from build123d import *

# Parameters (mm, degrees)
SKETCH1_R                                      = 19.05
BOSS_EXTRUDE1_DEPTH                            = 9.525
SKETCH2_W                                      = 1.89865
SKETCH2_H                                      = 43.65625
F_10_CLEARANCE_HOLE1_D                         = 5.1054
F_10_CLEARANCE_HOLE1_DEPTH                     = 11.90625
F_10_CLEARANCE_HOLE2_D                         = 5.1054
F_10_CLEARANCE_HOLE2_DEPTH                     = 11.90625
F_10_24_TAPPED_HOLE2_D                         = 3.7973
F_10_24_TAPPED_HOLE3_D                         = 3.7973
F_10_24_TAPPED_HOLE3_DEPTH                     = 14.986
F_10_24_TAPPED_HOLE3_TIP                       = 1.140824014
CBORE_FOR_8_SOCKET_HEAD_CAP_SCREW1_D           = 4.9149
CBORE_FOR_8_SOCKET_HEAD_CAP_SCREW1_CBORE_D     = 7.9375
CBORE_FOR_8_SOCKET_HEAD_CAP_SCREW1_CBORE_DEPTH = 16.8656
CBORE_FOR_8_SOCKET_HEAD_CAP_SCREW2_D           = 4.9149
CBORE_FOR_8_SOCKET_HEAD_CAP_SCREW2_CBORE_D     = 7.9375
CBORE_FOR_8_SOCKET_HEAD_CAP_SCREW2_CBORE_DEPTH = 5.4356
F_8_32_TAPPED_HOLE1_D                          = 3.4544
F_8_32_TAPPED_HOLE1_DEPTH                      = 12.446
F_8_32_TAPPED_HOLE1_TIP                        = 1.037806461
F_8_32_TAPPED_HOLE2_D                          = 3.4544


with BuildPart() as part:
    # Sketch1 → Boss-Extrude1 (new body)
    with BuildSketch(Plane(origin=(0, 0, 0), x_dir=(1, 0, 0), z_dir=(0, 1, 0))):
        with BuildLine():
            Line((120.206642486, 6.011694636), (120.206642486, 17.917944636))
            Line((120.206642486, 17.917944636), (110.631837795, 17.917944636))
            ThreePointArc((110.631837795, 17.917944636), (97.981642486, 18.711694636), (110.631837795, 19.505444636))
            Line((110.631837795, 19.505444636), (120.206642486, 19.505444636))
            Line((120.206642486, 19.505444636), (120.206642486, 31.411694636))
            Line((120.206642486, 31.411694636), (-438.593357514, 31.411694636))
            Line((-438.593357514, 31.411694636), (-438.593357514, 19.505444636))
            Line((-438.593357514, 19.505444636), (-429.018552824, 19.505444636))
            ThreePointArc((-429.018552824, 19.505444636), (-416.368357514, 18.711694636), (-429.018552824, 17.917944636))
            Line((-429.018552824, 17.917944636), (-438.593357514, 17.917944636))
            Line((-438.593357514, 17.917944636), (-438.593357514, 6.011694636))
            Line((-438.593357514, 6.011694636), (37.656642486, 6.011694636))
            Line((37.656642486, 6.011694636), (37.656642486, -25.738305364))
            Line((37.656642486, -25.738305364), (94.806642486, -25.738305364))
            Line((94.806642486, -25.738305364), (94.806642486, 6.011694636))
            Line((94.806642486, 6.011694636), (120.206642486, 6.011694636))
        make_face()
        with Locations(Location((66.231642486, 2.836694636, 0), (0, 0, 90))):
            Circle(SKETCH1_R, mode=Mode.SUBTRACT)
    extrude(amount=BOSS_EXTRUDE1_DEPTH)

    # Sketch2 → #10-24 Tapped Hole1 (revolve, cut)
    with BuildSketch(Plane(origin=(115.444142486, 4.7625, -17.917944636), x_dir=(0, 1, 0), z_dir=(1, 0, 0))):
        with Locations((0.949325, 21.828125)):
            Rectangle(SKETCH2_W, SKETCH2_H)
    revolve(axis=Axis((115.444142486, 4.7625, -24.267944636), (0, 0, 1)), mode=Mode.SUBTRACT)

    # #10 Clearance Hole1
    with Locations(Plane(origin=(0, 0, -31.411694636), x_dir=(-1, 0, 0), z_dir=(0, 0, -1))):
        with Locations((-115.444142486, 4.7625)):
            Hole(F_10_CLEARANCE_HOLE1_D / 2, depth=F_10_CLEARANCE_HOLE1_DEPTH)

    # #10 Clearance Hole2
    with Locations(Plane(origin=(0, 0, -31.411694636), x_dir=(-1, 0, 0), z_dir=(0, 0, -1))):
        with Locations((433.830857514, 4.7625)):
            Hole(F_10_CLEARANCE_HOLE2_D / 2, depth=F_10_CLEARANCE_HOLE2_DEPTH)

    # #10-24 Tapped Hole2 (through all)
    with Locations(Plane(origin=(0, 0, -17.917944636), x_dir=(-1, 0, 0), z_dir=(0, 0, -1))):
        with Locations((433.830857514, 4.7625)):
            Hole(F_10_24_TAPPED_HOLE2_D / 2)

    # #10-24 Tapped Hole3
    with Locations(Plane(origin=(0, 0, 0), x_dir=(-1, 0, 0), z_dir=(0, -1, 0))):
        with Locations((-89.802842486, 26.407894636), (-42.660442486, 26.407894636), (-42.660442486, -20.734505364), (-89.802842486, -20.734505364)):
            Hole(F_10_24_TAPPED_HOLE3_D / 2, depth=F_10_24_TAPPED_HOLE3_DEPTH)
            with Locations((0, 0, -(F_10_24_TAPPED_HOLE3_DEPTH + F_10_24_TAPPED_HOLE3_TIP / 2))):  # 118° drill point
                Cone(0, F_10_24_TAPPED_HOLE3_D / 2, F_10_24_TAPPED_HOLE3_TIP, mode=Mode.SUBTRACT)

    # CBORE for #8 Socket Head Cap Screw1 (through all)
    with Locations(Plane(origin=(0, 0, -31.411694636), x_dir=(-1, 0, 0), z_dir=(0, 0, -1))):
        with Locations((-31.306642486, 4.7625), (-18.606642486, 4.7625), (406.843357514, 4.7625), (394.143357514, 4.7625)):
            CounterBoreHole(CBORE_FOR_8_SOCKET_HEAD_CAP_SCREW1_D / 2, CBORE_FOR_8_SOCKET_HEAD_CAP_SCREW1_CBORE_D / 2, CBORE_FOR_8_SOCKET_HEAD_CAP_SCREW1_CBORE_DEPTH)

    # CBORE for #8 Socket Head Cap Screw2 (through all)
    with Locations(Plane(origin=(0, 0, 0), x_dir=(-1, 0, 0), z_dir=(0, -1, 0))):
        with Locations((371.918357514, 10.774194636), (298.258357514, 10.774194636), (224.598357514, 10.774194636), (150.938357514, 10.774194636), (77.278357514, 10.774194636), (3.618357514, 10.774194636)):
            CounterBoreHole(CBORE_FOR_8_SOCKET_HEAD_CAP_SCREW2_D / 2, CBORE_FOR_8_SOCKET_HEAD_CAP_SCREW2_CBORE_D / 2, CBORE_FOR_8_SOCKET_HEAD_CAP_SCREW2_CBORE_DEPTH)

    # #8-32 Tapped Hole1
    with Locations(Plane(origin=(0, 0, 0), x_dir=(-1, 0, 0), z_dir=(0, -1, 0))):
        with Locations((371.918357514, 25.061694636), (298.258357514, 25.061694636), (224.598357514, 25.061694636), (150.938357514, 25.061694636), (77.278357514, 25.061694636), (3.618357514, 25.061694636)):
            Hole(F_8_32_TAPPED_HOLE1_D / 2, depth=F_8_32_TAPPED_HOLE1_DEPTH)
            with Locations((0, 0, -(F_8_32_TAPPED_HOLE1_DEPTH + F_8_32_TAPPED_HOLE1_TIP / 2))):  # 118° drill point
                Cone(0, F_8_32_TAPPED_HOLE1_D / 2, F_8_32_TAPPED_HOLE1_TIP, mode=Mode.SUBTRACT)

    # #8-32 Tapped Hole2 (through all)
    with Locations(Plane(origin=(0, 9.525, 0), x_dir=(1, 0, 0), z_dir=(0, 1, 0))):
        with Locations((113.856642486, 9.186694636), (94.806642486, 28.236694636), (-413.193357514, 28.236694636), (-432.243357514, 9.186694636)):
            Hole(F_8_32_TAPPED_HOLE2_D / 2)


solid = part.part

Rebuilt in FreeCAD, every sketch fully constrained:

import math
import FreeCAD as App
import Part
import Sketcher
Q = App.Units.Quantity


def add_polygon(sketch, points):
    """Adds a closed chain of lines whose ends are joined by coincident constraints."""
    first, n = sketch.GeometryCount, len(points)
    for a, b in zip(points, points[1:] + points[:1]):
        sketch.addGeometry(Part.LineSegment(App.Vector(*a, 0), App.Vector(*b, 0)), False)
    for i in range(n):
        sketch.addConstraint(Sketcher.Constraint("Coincident", first + i, 2, first + (i + 1) % n, 1))

doc = App.newDocument("Part")
body = doc.addObject("PartDesign::Body", "Body")

# Sketch on XZ plane
sketch1 = body.newObject("Sketcher::SketchObject", "Sketch")
sketch1.AttachmentSupport = (doc.getObject("XZ_Plane"), [""])
sketch1.MapMode = "FlatFace"
sketch1.addGeometry([
    Part.LineSegment(App.Vector(120.206642, -6.011695, 0), App.Vector(120.206642, -17.917945, 0)),  # 0
    Part.LineSegment(App.Vector(120.206642, -17.917945, 0), App.Vector(110.631838, -17.917945, 0)),  # 1
    Part.ArcOfCircle(Part.Circle(App.Vector(104.331642, -18.711695, 0), App.Vector(0, 0, 1), 6.35), math.radians(7.180756), math.radians(352.819244)),  # 2
    Part.LineSegment(App.Vector(110.631838, -19.505445, 0), App.Vector(120.206642, -19.505445, 0)),  # 3
    Part.LineSegment(App.Vector(120.206642, -19.505445, 0), App.Vector(120.206642, -31.411695, 0)),  # 4
    Part.LineSegment(App.Vector(120.206642, -31.411695, 0), App.Vector(-438.593358, -31.411695, 0)),  # 5
    Part.LineSegment(App.Vector(-438.593358, -31.411695, 0), App.Vector(-438.593358, -19.505445, 0)),  # 6
    Part.LineSegment(App.Vector(-438.593358, -19.505445, 0), App.Vector(-429.018553, -19.505445, 0)),  # 7
    Part.ArcOfCircle(Part.Circle(App.Vector(-422.718358, -18.711695, 0), App.Vector(0, 0, 1), 6.35), math.radians(-172.819244), math.radians(172.819244)),  # 8
    Part.LineSegment(App.Vector(-429.018553, -17.917945, 0), App.Vector(-438.593358, -17.917945, 0)),  # 9
    Part.LineSegment(App.Vector(-438.593358, -17.917945, 0), App.Vector(-438.593358, -6.011695, 0)),  # 10
    Part.LineSegment(App.Vector(-438.593358, -6.011695, 0), App.Vector(37.656642, -6.011695, 0)),  # 11
    Part.LineSegment(App.Vector(37.656642, -6.011695, 0), App.Vector(37.656642, 25.738305, 0)),  # 12
    Part.LineSegment(App.Vector(37.656642, 25.738305, 0), App.Vector(94.806642, 25.738305, 0)),  # 13
    Part.LineSegment(App.Vector(94.806642, 25.738305, 0), App.Vector(94.806642, -6.011695, 0)),  # 14
    Part.LineSegment(App.Vector(94.806642, -6.011695, 0), App.Vector(120.206642, -6.011695, 0)),  # 15
    Part.Circle(App.Vector(66.231642, -2.836695, 0), App.Vector(0, 0, 1), 19.05),  # 16
], False)
sketch1.addConstraint([
    Sketcher.Constraint("Coincident", 0, 2, 1, 1),
    Sketcher.Constraint("Coincident", 1, 2, 2, 1),
    Sketcher.Constraint("Coincident", 2, 2, 3, 1),
    Sketcher.Constraint("Coincident", 3, 2, 4, 1),
    Sketcher.Constraint("Coincident", 4, 2, 5, 1),
    Sketcher.Constraint("Coincident", 5, 2, 6, 1),
    Sketcher.Constraint("Coincident", 6, 2, 7, 1),
    Sketcher.Constraint("Coincident", 7, 2, 8, 1),
    Sketcher.Constraint("Coincident", 8, 2, 9, 1),
    Sketcher.Constraint("Coincident", 9, 2, 10, 1),
    Sketcher.Constraint("Coincident", 10, 2, 11, 1),
    Sketcher.Constraint("Coincident", 11, 2, 12, 1),
    Sketcher.Constraint("Coincident", 12, 2, 13, 1),
    Sketcher.Constraint("Coincident", 13, 2, 14, 1),
    Sketcher.Constraint("Coincident", 14, 2, 15, 1),
    Sketcher.Constraint("Coincident", 15, 2, 0, 1),
    Sketcher.Constraint("Vertical", 0),
    Sketcher.Constraint("Horizontal", 1),
    Sketcher.Constraint("Horizontal", 3),
    Sketcher.Constraint("Vertical", 4),
    Sketcher.Constraint("Horizontal", 5),
    Sketcher.Constraint("Vertical", 6),
    Sketcher.Constraint("Horizontal", 7),
    Sketcher.Constraint("Horizontal", 9),
    Sketcher.Constraint("Vertical", 10),
    Sketcher.Constraint("Horizontal", 11),
    Sketcher.Constraint("Vertical", 12),
    Sketcher.Constraint("Horizontal", 13),
    Sketcher.Constraint("Vertical", 14),
    Sketcher.Constraint("Horizontal", 15),
    Sketcher.Constraint("Equal", 2, 8),
    Sketcher.Constraint("Horizontal", 2, 3, 8, 3),
    Sketcher.Constraint("Horizontal", 3, 2, 6, 2),
    Sketcher.Constraint("Horizontal", 1, 2, 8, 2),
    Sketcher.Constraint("Horizontal", 11, 2, 14, 2),
    Sketcher.Constraint("Vertical", 1, 2, 2, 2),
    Sketcher.Constraint("Vertical", 0, 2, 3, 2),
    Sketcher.Constraint("Vertical", 6, 2, 9, 2),
    Sketcher.Constraint("Equal", 3, 7),
    Sketcher.Constraint("Equal", 0, 4),
    Sketcher.Constraint("Diameter", 16, Q("1.5 in")),
    Sketcher.Constraint("DistanceX", 5, 2, 5, 1, Q("22 in")),
    Sketcher.Constraint("DistanceX", 15, 1, 15, 2, Q("1 in")),
    Sketcher.Constraint("Radius", 2, Q("0.25 in")),
    Sketcher.Constraint("DistanceX", 11, 1, 11, 2, Q("18.75 in")),
    Sketcher.Constraint("DistanceY", 12, 1, 12, 2, Q("1.25 in")),
    Sketcher.Constraint("DistanceX", 16, 3, 2, 3, Q("1.5 in")),
    Sketcher.Constraint("DistanceY", 4, 2, 2, 3, Q("0.5 in")),
    Sketcher.Constraint("DistanceY", 0, 2, 0, 1, Q("0.46875 in")),
    Sketcher.Constraint("DistanceX", 8, 3, 2, 3, Q("20.75 in")),
    Sketcher.Constraint("DistanceY", 2, 3, 16, 3, Q("0.625 in")),
    Sketcher.Constraint("DistanceX", -1, 1, 2, 3, Q("104.331642 mm")),
    Sketcher.Constraint("DistanceY", 2, 3, -1, 1, Q("18.711695 mm")),
])
pad1 = body.newObject("PartDesign::Pad", "Pad")
pad1.Profile = sketch1
pad1.Length = Q("0.375 in")
pad1.Reversed = True

# Sketch on YZ plane
sketch2 = body.newObject("Sketcher::SketchObject", "Sketch001")
sketch2.AttachmentSupport = (doc.getObject("YZ_Plane"), [""])
sketch2.MapMode = "FlatFace"
sketch2.AttachmentOffset = App.Placement(App.Vector(0, 0, 115.444142), App.Rotation())
add_polygon(sketch2, [(4.7625, 25.738305), (4.7625, -17.917945), (6.66115, -17.917945), (6.66115, 25.738305)])  # lines 0-3
sketch2.addGeometry(Part.LineSegment(App.Vector(4.7625, -17.917945, 0), App.Vector(4.7625, 25.738305, 0)), True)  # axis
sketch2.addConstraint([
    Sketcher.Constraint("Vertical", 0),
    Sketcher.Constraint("Horizontal", 1),
    Sketcher.Constraint("Vertical", 2),
    Sketcher.Constraint("Horizontal", 3),
    Sketcher.Constraint("Vertical", 4),
    Sketcher.Constraint("Coincident", 4, 1, 0, 2),
    Sketcher.Constraint("Horizontal", 2, 2, 4, 2),
    Sketcher.Constraint("DistanceY", 0, 2, 0, 1, Q("1.71875 in")),
    Sketcher.Constraint("DistanceX", -1, 1, 0, 2, Q("0.1875 in")),
    Sketcher.Constraint("DistanceX", 1, 1, 1, 2, Q("1.89865 mm")),
    Sketcher.Constraint("DistanceY", 0, 2, -1, 1, Q("17.917945 mm")),
])
groove = body.newObject("PartDesign::Groove", "Groove")
groove.Profile = sketch2
groove.ReferenceAxis = (sketch2, ["Axis0"])
groove.Angle = 360

# Sketch on XY plane
sketch3 = body.newObject("Sketcher::SketchObject", "Sketch002")
sketch3.AttachmentSupport = (doc.getObject("XY_Plane"), [""])
sketch3.MapMode = "FlatFace"
sketch3.AttachmentOffset = App.Placement(App.Vector(0, 0, -31.411695), App.Rotation())
sketch3.addGeometry(Part.Circle(App.Vector(115.444142, 4.7625, 0), App.Vector(0, 0, 1), 2.5527), False)
sketch3.addConstraint([
    Sketcher.Constraint("Diameter", 0, Q("0.201 in")),
    Sketcher.Constraint("DistanceY", -1, 1, 0, 3, Q("0.1875 in")),
    Sketcher.Constraint("DistanceX", -1, 1, 0, 3, Q("115.444142 mm")),
])
doc.recompute()
hole = body.newObject("PartDesign::Hole", "Hole")
hole.Profile = sketch3
hole.ThreadType = "None"
hole.Diameter = Q("0.201 in")
hole.DepthType = "Dimension"
hole.Depth = Q("0.46875 in")
hole.DrillPoint = "Flat"
hole.Reversed = True

# Sketch on XY plane
sketch4 = body.newObject("Sketcher::SketchObject", "Sketch003")
sketch4.AttachmentSupport = (doc.getObject("XY_Plane"), [""])
sketch4.MapMode = "FlatFace"
sketch4.AttachmentOffset = App.Placement(App.Vector(0, 0, -31.411695), App.Rotation())
sketch4.addGeometry(Part.Circle(App.Vector(-433.830858, 4.7625, 0), App.Vector(0, 0, 1), 2.5527), False)
sketch4.addConstraint([
    Sketcher.Constraint("Diameter", 0, Q("0.201 in")),
    Sketcher.Constraint("DistanceY", -1, 1, 0, 3, Q("0.1875 in")),
    Sketcher.Constraint("DistanceX", 0, 3, -1, 1, Q("433.830858 mm")),
])
doc.recompute()
hole2 = body.newObject("PartDesign::Hole", "Hole001")
hole2.Profile = sketch4
hole2.ThreadType = "None"
hole2.Diameter = Q("0.201 in")
hole2.DepthType = "Dimension"
hole2.Depth = Q("0.46875 in")
hole2.DrillPoint = "Flat"
hole2.Reversed = True

# Sketch on XY plane
sketch5 = body.newObject("Sketcher::SketchObject", "Sketch004")
sketch5.AttachmentSupport = (doc.getObject("XY_Plane"), [""])
sketch5.MapMode = "FlatFace"
sketch5.AttachmentOffset = App.Placement(App.Vector(0, 0, -17.917945), App.Rotation())
sketch5.addGeometry(Part.Circle(App.Vector(-433.830858, 4.7625, 0), App.Vector(0, 0, 1), 1.89865), False)
sketch5.addConstraint([
    Sketcher.Constraint("Diameter", 0, Q("0.1495 in")),
    Sketcher.Constraint("DistanceY", -1, 1, 0, 3, Q("0.1875 in")),
    Sketcher.Constraint("DistanceX", 0, 3, -1, 1, Q("433.830858 mm")),
])
doc.recompute()
hole3 = body.newObject("PartDesign::Hole", "Hole002")
hole3.Profile = sketch5
hole3.ThreadType = "None"
hole3.Diameter = Q("0.1495 in")
hole3.DepthType = "ThroughAll"
hole3.Reversed = True

# Sketch on XZ plane
sketch6 = body.newObject("Sketcher::SketchObject", "Sketch005")
sketch6.AttachmentSupport = (doc.getObject("XZ_Plane"), [""])
sketch6.MapMode = "FlatFace"
sketch6.addGeometry([
    Part.Circle(App.Vector(89.802842, -26.407895, 0), App.Vector(0, 0, 1), 1.89865),
    Part.Circle(App.Vector(42.660442, -26.407895, 0), App.Vector(0, 0, 1), 1.89865),
    Part.Circle(App.Vector(42.660442, 20.734505, 0), App.Vector(0, 0, 1), 1.89865),
    Part.Circle(App.Vector(89.802842, 20.734505, 0), App.Vector(0, 0, 1), 1.89865),
], False)
sketch6.addConstraint([
    Sketcher.Constraint("Equal", 0, 1),
    Sketcher.Constraint("Equal", 1, 2),
    Sketcher.Constraint("Equal", 2, 3),
    Sketcher.Constraint("Horizontal", 0, 3, 1, 3),
    Sketcher.Constraint("Horizontal", 2, 3, 3, 3),
    Sketcher.Constraint("Vertical", 1, 3, 2, 3),
    Sketcher.Constraint("Vertical", 0, 3, 3, 3),
    Sketcher.Constraint("Diameter", 0, Q("0.1495 in")),
    Sketcher.Constraint("DistanceX", 1, 3, 0, 3, Q("1.856 in")),
    Sketcher.Constraint("DistanceY", 1, 3, 2, 3, Q("1.856 in")),
    Sketcher.Constraint("DistanceX", -1, 1, 0, 3, Q("89.802842 mm")),
    Sketcher.Constraint("DistanceY", 0, 3, -1, 1, Q("26.407895 mm")),
])
doc.recompute()
hole4 = body.newObject("PartDesign::Hole", "Hole003")
hole4.Profile = sketch6
hole4.ThreadType = "None"
hole4.Diameter = Q("0.1495 in")
hole4.DepthType = "Dimension"
hole4.Depth = Q("0.59 in")
hole4.DrillPoint = "Angled"
hole4.DrillPointAngle = 118

# Sketch on XY plane
sketch7 = body.newObject("Sketcher::SketchObject", "Sketch006")
sketch7.AttachmentSupport = (doc.getObject("XY_Plane"), [""])
sketch7.MapMode = "FlatFace"
sketch7.AttachmentOffset = App.Placement(App.Vector(0, 0, -31.411695), App.Rotation())
sketch7.addGeometry([
    Part.Circle(App.Vector(31.306642, 4.7625, 0), App.Vector(0, 0, 1), 2.45745),
    Part.Circle(App.Vector(18.606642, 4.7625, 0), App.Vector(0, 0, 1), 2.45745),
    Part.Circle(App.Vector(-406.843358, 4.7625, 0), App.Vector(0, 0, 1), 2.45745),
    Part.Circle(App.Vector(-394.143358, 4.7625, 0), App.Vector(0, 0, 1), 2.45745),
], False)
sketch7.addConstraint([
    Sketcher.Constraint("Equal", 0, 1),
    Sketcher.Constraint("Equal", 1, 2),
    Sketcher.Constraint("Equal", 2, 3),
    Sketcher.Constraint("Horizontal", 0, 3, 1, 3),
    Sketcher.Constraint("Horizontal", 1, 3, 2, 3),
    Sketcher.Constraint("Horizontal", 2, 3, 3, 3),
    Sketcher.Constraint("Diameter", 0, Q("0.1935 in")),
    Sketcher.Constraint("DistanceX", 1, 3, 0, 3, Q("0.5 in")),
    Sketcher.Constraint("DistanceX", 2, 3, 3, 3, Q("0.5 in")),
    Sketcher.Constraint("DistanceX", 2, 3, 1, 3, Q("16.75 in")),
    Sketcher.Constraint("DistanceY", -1, 1, 0, 3, Q("0.1875 in")),
    Sketcher.Constraint("DistanceX", -1, 1, 0, 3, Q("31.306642 mm")),
])
doc.recompute()
hole5 = body.newObject("PartDesign::Hole", "Hole004")
hole5.Profile = sketch7
hole5.ThreadType = "None"
hole5.Diameter = Q("0.1935 in")
hole5.DepthType = "ThroughAll"
hole5.HoleCutType = "Counterbore"
hole5.HoleCutDiameter = Q("0.3125 in")
hole5.HoleCutDepth = Q("0.664 in")
hole5.Reversed = True

# Sketch on XZ plane
sketch8 = body.newObject("Sketcher::SketchObject", "Sketch007")
sketch8.AttachmentSupport = (doc.getObject("XZ_Plane"), [""])
sketch8.MapMode = "FlatFace"
sketch8.addGeometry([
    Part.Circle(App.Vector(-371.918358, -10.774195, 0), App.Vector(0, 0, 1), 2.45745),  # 0
    Part.Circle(App.Vector(-298.258358, -10.774195, 0), App.Vector(0, 0, 1), 2.45745),  # 1
    Part.Circle(App.Vector(-224.598358, -10.774195, 0), App.Vector(0, 0, 1), 2.45745),  # 2
    Part.Circle(App.Vector(-150.938358, -10.774195, 0), App.Vector(0, 0, 1), 2.45745),  # 3
    Part.Circle(App.Vector(-77.278358, -10.774195, 0), App.Vector(0, 0, 1), 2.45745),  # 4
    Part.Circle(App.Vector(-3.618358, -10.774195, 0), App.Vector(0, 0, 1), 2.45745),  # 5
], False)
sketch8.addConstraint([
    Sketcher.Constraint("Equal", 0, 1),
    Sketcher.Constraint("Equal", 1, 2),
    Sketcher.Constraint("Equal", 2, 3),
    Sketcher.Constraint("Equal", 3, 4),
    Sketcher.Constraint("Equal", 4, 5),
    Sketcher.Constraint("Horizontal", 0, 3, 1, 3),
    Sketcher.Constraint("Horizontal", 1, 3, 2, 3),
    Sketcher.Constraint("Horizontal", 2, 3, 3, 3),
    Sketcher.Constraint("Horizontal", 3, 3, 4, 3),
    Sketcher.Constraint("Horizontal", 4, 3, 5, 3),
    Sketcher.Constraint("Diameter", 0, Q("0.1935 in")),
    Sketcher.Constraint("DistanceX", 0, 3, 1, 3, Q("2.9 in")),
    Sketcher.Constraint("DistanceX", 1, 3, 2, 3, Q("2.9 in")),
    Sketcher.Constraint("DistanceX", 2, 3, 3, 3, Q("2.9 in")),
    Sketcher.Constraint("DistanceX", 3, 3, 4, 3, Q("2.9 in")),
    Sketcher.Constraint("DistanceX", 4, 3, 5, 3, Q("2.9 in")),
    Sketcher.Constraint("DistanceX", 0, 3, -1, 1, Q("371.918358 mm")),
    Sketcher.Constraint("DistanceY", 0, 3, -1, 1, Q("10.774195 mm")),
])
doc.recompute()
hole6 = body.newObject("PartDesign::Hole", "Hole005")
hole6.Profile = sketch8
hole6.ThreadType = "None"
hole6.Diameter = Q("0.1935 in")
hole6.DepthType = "ThroughAll"
hole6.HoleCutType = "Counterbore"
hole6.HoleCutDiameter = Q("0.3125 in")
hole6.HoleCutDepth = Q("0.214 in")

# Sketch on XZ plane
sketch9 = body.newObject("Sketcher::SketchObject", "Sketch008")
sketch9.AttachmentSupport = (doc.getObject("XZ_Plane"), [""])
sketch9.MapMode = "FlatFace"
sketch9.addGeometry([
    Part.Circle(App.Vector(-371.918358, -25.061695, 0), App.Vector(0, 0, 1), 1.7272),  # 0
    Part.Circle(App.Vector(-298.258358, -25.061695, 0), App.Vector(0, 0, 1), 1.7272),  # 1
    Part.Circle(App.Vector(-224.598358, -25.061695, 0), App.Vector(0, 0, 1), 1.7272),  # 2
    Part.Circle(App.Vector(-150.938358, -25.061695, 0), App.Vector(0, 0, 1), 1.7272),  # 3
    Part.Circle(App.Vector(-77.278358, -25.061695, 0), App.Vector(0, 0, 1), 1.7272),  # 4
    Part.Circle(App.Vector(-3.618358, -25.061695, 0), App.Vector(0, 0, 1), 1.7272),  # 5
], False)
sketch9.addConstraint([
    Sketcher.Constraint("Equal", 0, 1),
    Sketcher.Constraint("Equal", 1, 2),
    Sketcher.Constraint("Equal", 2, 3),
    Sketcher.Constraint("Equal", 3, 4),
    Sketcher.Constraint("Equal", 4, 5),
    Sketcher.Constraint("Horizontal", 0, 3, 1, 3),
    Sketcher.Constraint("Horizontal", 1, 3, 2, 3),
    Sketcher.Constraint("Horizontal", 2, 3, 3, 3),
    Sketcher.Constraint("Horizontal", 3, 3, 4, 3),
    Sketcher.Constraint("Horizontal", 4, 3, 5, 3),
    Sketcher.Constraint("Diameter", 0, Q("0.136 in")),
    Sketcher.Constraint("DistanceX", 0, 3, 1, 3, Q("2.9 in")),
    Sketcher.Constraint("DistanceX", 1, 3, 2, 3, Q("2.9 in")),
    Sketcher.Constraint("DistanceX", 2, 3, 3, 3, Q("2.9 in")),
    Sketcher.Constraint("DistanceX", 3, 3, 4, 3, Q("2.9 in")),
    Sketcher.Constraint("DistanceX", 4, 3, 5, 3, Q("2.9 in")),
    Sketcher.Constraint("DistanceX", 0, 3, -1, 1, Q("371.918358 mm")),
    Sketcher.Constraint("DistanceY", 0, 3, -1, 1, Q("25.061695 mm")),
])
doc.recompute()
hole7 = body.newObject("PartDesign::Hole", "Hole006")
hole7.Profile = sketch9
hole7.ThreadType = "None"
hole7.Diameter = Q("0.136 in")
hole7.DepthType = "Dimension"
hole7.Depth = Q("0.49 in")
hole7.DrillPoint = "Angled"
hole7.DrillPointAngle = 118

# Sketch on XZ plane
sketch10 = body.newObject("Sketcher::SketchObject", "Sketch009")
sketch10.AttachmentSupport = (doc.getObject("XZ_Plane"), [""])
sketch10.MapMode = "FlatFace"
sketch10.AttachmentOffset = App.Placement(App.Vector(0, 0, -0.375 * 25.4), App.Rotation())
sketch10.addGeometry([
    Part.Circle(App.Vector(113.856642, -9.186695, 0), App.Vector(0, 0, 1), 1.7272),
    Part.Circle(App.Vector(94.806642, -28.236695, 0), App.Vector(0, 0, 1), 1.7272),
    Part.Circle(App.Vector(-413.193358, -28.236695, 0), App.Vector(0, 0, 1), 1.7272),
    Part.Circle(App.Vector(-432.243358, -9.186695, 0), App.Vector(0, 0, 1), 1.7272),
], False)
sketch10.addConstraint([
    Sketcher.Constraint("Equal", 0, 1),
    Sketcher.Constraint("Equal", 1, 2),
    Sketcher.Constraint("Equal", 2, 3),
    Sketcher.Constraint("Horizontal", 1, 3, 2, 3),
    Sketcher.Constraint("Horizontal", 0, 3, 3, 3),
    Sketcher.Constraint("Diameter", 0, Q("0.136 in")),
    Sketcher.Constraint("DistanceX", 2, 3, 1, 3, Q("20 in")),
    Sketcher.Constraint("DistanceX", 3, 3, 0, 3, Q("21.5 in")),
    Sketcher.Constraint("DistanceX", 1, 3, 0, 3, Q("0.75 in")),
    Sketcher.Constraint("DistanceY", 1, 3, 0, 3, Q("0.75 in")),
    Sketcher.Constraint("DistanceX", -1, 1, 0, 3, Q("113.856642 mm")),
    Sketcher.Constraint("DistanceY", 0, 3, -1, 1, Q("9.186695 mm")),
])
doc.recompute()
hole8 = body.newObject("PartDesign::Hole", "Hole007")
hole8.Profile = sketch10
hole8.ThreadType = "None"
hole8.Diameter = Q("0.136 in")
hole8.DepthType = "ThroughAll"
hole8.Reversed = True

doc.recompute()
